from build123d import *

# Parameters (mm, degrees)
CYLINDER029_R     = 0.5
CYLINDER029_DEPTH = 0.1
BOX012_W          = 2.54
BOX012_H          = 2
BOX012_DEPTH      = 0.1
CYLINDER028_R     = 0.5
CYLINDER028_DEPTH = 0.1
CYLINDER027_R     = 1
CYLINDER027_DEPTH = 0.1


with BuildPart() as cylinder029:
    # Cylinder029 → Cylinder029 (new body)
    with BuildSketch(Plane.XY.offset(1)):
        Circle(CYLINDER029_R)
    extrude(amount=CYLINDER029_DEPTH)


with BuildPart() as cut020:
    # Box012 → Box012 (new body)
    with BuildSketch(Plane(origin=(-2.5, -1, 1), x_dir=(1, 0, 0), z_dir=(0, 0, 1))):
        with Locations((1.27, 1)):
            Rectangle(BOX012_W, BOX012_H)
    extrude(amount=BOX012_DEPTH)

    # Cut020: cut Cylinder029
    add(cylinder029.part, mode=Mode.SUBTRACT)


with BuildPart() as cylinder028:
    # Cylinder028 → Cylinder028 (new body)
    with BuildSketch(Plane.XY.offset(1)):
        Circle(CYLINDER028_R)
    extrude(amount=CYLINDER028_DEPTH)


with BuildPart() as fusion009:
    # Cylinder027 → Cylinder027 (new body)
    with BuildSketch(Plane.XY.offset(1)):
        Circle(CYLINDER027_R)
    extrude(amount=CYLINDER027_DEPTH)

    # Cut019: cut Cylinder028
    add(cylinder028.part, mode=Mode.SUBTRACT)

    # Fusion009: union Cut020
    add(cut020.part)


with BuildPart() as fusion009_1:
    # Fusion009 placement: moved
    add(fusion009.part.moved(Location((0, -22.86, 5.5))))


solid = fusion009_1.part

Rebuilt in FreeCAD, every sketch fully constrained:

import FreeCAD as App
import Part
import Sketcher
from FreeCAD import Vector

doc = App.newDocument("Part")
body = doc.addObject("PartDesign::Body", "Body")

sketch1 = body.newObject("Sketcher::SketchObject", "Sketch")
sketch1.AttachmentSupport = (doc.getObject("XY_Plane"), [""])
sketch1.MapMode = "FlatFace"
sketch1.AttachmentOffset = App.Placement(Vector(0, 0, 1), App.Rotation())
sketch1.addGeometry(Part.Circle(Vector(0, 0, 0), Vector(0, 0, 1), 0.5), False)
sketch1.addConstraint([
    Sketcher.Constraint("Coincident", 0, 3, -1, 1),
    Sketcher.Constraint("Diameter", 0, 1.0),
])
pad1 = body.newObject("PartDesign::Pad", "Pad")
pad1.Profile = sketch1
pad1.Length = 0.1
body2 = doc.addObject("PartDesign::Body", "Body001")

sketch2 = body2.newObject("Sketcher::SketchObject", "Sketch001")
sketch2.AttachmentSupport = (doc.getObject("XY_Plane001"), [""])
sketch2.MapMode = "FlatFace"
sketch2.AttachmentOffset = App.Placement(Vector(0, 0, 1), App.Rotation())
sketch2.addGeometry([
    Part.LineSegment(Vector(-2.5, 1, 0), Vector(-2.5, -1, 0)),
    Part.LineSegment(Vector(-2.5, -1, 0), Vector(0, -1, 0)),
    Part.LineSegment(Vector(0, -1, 0), Vector(0, 1, 0)),
    Part.LineSegment(Vector(0, 1, 0), Vector(-2.5, 1, 0)),
], False)
sketch2.addConstraint([
    Sketcher.Constraint("Coincident", 0, 2, 1, 1),
    Sketcher.Constraint("Coincident", 1, 2, 2, 1),
    Sketcher.Constraint("Coincident", 2, 2, 3, 1),
    Sketcher.Constraint("Coincident", 3, 2, 0, 1),
    Sketcher.Constraint("Vertical", 0),
    Sketcher.Constraint("Horizontal", 1),
    Sketcher.Constraint("Vertical", 2),
    Sketcher.Constraint("Horizontal", 3),
    Sketcher.Constraint("DistanceY", 0, 2, 0, 1, 2.0),
    Sketcher.Constraint("DistanceY", 0, 2, -1, 1, 1.0),
    Sketcher.Constraint("DistanceX", 1, 1, 1, 2, 2.54),
    Sketcher.Constraint("DistanceX", 0, 2, -1, 1, 2.5),
])
pad2 = body2.newObject("PartDesign::Pad", "Pad001")
pad2.Profile = sketch2
pad2.Length = 0.1
doc.recompute()

boolean = body2.newObject("PartDesign::Boolean", "Boolean")
boolean.Type = "Cut"
boolean.addObjects([body])
body3 = doc.addObject("PartDesign::Body", "Body002")

sketch3 = body3.newObject("Sketcher::SketchObject", "Sketch002")
sketch3.AttachmentSupport = (doc.getObject("XY_Plane002"), [""])
sketch3.MapMode = "FlatFace"
sketch3.AttachmentOffset = App.Placement(Vector(0, 0, 1), App.Rotation())
sketch3.addGeometry(Part.Circle(Vector(0, 0, 0), Vector(0, 0, 1), 0.5), False)
sketch3.addConstraint([
    Sketcher.Constraint("Coincident", 0, 3, -1, 1),
    Sketcher.Constraint("Diameter", 0, 1.0),
])
pad3 = body3.newObject("PartDesign::Pad", "Pad002")
pad3.Profile = sketch3
pad3.Length = 0.1
body4 = doc.addObject("PartDesign::Body", "Body003")

sketch4 = body4.newObject("Sketcher::SketchObject", "Sketch003")
sketch4.AttachmentSupport = (doc.getObject("XY_Plane003"), [""])
sketch4.MapMode = "FlatFace"
sketch4.AttachmentOffset = App.Placement(Vector(0, 0, 1), App.Rotation())
sketch4.addGeometry(Part.Circle(Vector(0, 0, 0), Vector(0, 0, 1), 1), False)
sketch4.addConstraint([
    Sketcher.Constraint("Coincident", 0, 3, -1, 1),
    Sketcher.Constraint("Diameter", 0, 2.0),
])
pad4 = body4.newObject("PartDesign::Pad", "Pad003")
pad4.Profile = sketch4
pad4.Length = 0.1
doc.recompute()

boolean2 = body4.newObject("PartDesign::Boolean", "Boolean001")
boolean2.Type = "Cut"
boolean2.addObjects([body3])
doc.recompute()

boolean3 = body4.newObject("PartDesign::Boolean", "Boolean002")
boolean3.Type = "Fuse"
boolean3.addObjects([body2])
body5 = doc.addObject("PartDesign::Body", "Body004")
doc.recompute()

body4.Placement = App.Placement(Vector(0, -22.86, 5.5), App.Rotation(Vector(0, 0, 1), 0))
boolean4 = body5.newObject("PartDesign::Boolean", "Boolean003")
boolean4.Type = "Fuse"
boolean4.addObjects([body4])

doc.recompute()
